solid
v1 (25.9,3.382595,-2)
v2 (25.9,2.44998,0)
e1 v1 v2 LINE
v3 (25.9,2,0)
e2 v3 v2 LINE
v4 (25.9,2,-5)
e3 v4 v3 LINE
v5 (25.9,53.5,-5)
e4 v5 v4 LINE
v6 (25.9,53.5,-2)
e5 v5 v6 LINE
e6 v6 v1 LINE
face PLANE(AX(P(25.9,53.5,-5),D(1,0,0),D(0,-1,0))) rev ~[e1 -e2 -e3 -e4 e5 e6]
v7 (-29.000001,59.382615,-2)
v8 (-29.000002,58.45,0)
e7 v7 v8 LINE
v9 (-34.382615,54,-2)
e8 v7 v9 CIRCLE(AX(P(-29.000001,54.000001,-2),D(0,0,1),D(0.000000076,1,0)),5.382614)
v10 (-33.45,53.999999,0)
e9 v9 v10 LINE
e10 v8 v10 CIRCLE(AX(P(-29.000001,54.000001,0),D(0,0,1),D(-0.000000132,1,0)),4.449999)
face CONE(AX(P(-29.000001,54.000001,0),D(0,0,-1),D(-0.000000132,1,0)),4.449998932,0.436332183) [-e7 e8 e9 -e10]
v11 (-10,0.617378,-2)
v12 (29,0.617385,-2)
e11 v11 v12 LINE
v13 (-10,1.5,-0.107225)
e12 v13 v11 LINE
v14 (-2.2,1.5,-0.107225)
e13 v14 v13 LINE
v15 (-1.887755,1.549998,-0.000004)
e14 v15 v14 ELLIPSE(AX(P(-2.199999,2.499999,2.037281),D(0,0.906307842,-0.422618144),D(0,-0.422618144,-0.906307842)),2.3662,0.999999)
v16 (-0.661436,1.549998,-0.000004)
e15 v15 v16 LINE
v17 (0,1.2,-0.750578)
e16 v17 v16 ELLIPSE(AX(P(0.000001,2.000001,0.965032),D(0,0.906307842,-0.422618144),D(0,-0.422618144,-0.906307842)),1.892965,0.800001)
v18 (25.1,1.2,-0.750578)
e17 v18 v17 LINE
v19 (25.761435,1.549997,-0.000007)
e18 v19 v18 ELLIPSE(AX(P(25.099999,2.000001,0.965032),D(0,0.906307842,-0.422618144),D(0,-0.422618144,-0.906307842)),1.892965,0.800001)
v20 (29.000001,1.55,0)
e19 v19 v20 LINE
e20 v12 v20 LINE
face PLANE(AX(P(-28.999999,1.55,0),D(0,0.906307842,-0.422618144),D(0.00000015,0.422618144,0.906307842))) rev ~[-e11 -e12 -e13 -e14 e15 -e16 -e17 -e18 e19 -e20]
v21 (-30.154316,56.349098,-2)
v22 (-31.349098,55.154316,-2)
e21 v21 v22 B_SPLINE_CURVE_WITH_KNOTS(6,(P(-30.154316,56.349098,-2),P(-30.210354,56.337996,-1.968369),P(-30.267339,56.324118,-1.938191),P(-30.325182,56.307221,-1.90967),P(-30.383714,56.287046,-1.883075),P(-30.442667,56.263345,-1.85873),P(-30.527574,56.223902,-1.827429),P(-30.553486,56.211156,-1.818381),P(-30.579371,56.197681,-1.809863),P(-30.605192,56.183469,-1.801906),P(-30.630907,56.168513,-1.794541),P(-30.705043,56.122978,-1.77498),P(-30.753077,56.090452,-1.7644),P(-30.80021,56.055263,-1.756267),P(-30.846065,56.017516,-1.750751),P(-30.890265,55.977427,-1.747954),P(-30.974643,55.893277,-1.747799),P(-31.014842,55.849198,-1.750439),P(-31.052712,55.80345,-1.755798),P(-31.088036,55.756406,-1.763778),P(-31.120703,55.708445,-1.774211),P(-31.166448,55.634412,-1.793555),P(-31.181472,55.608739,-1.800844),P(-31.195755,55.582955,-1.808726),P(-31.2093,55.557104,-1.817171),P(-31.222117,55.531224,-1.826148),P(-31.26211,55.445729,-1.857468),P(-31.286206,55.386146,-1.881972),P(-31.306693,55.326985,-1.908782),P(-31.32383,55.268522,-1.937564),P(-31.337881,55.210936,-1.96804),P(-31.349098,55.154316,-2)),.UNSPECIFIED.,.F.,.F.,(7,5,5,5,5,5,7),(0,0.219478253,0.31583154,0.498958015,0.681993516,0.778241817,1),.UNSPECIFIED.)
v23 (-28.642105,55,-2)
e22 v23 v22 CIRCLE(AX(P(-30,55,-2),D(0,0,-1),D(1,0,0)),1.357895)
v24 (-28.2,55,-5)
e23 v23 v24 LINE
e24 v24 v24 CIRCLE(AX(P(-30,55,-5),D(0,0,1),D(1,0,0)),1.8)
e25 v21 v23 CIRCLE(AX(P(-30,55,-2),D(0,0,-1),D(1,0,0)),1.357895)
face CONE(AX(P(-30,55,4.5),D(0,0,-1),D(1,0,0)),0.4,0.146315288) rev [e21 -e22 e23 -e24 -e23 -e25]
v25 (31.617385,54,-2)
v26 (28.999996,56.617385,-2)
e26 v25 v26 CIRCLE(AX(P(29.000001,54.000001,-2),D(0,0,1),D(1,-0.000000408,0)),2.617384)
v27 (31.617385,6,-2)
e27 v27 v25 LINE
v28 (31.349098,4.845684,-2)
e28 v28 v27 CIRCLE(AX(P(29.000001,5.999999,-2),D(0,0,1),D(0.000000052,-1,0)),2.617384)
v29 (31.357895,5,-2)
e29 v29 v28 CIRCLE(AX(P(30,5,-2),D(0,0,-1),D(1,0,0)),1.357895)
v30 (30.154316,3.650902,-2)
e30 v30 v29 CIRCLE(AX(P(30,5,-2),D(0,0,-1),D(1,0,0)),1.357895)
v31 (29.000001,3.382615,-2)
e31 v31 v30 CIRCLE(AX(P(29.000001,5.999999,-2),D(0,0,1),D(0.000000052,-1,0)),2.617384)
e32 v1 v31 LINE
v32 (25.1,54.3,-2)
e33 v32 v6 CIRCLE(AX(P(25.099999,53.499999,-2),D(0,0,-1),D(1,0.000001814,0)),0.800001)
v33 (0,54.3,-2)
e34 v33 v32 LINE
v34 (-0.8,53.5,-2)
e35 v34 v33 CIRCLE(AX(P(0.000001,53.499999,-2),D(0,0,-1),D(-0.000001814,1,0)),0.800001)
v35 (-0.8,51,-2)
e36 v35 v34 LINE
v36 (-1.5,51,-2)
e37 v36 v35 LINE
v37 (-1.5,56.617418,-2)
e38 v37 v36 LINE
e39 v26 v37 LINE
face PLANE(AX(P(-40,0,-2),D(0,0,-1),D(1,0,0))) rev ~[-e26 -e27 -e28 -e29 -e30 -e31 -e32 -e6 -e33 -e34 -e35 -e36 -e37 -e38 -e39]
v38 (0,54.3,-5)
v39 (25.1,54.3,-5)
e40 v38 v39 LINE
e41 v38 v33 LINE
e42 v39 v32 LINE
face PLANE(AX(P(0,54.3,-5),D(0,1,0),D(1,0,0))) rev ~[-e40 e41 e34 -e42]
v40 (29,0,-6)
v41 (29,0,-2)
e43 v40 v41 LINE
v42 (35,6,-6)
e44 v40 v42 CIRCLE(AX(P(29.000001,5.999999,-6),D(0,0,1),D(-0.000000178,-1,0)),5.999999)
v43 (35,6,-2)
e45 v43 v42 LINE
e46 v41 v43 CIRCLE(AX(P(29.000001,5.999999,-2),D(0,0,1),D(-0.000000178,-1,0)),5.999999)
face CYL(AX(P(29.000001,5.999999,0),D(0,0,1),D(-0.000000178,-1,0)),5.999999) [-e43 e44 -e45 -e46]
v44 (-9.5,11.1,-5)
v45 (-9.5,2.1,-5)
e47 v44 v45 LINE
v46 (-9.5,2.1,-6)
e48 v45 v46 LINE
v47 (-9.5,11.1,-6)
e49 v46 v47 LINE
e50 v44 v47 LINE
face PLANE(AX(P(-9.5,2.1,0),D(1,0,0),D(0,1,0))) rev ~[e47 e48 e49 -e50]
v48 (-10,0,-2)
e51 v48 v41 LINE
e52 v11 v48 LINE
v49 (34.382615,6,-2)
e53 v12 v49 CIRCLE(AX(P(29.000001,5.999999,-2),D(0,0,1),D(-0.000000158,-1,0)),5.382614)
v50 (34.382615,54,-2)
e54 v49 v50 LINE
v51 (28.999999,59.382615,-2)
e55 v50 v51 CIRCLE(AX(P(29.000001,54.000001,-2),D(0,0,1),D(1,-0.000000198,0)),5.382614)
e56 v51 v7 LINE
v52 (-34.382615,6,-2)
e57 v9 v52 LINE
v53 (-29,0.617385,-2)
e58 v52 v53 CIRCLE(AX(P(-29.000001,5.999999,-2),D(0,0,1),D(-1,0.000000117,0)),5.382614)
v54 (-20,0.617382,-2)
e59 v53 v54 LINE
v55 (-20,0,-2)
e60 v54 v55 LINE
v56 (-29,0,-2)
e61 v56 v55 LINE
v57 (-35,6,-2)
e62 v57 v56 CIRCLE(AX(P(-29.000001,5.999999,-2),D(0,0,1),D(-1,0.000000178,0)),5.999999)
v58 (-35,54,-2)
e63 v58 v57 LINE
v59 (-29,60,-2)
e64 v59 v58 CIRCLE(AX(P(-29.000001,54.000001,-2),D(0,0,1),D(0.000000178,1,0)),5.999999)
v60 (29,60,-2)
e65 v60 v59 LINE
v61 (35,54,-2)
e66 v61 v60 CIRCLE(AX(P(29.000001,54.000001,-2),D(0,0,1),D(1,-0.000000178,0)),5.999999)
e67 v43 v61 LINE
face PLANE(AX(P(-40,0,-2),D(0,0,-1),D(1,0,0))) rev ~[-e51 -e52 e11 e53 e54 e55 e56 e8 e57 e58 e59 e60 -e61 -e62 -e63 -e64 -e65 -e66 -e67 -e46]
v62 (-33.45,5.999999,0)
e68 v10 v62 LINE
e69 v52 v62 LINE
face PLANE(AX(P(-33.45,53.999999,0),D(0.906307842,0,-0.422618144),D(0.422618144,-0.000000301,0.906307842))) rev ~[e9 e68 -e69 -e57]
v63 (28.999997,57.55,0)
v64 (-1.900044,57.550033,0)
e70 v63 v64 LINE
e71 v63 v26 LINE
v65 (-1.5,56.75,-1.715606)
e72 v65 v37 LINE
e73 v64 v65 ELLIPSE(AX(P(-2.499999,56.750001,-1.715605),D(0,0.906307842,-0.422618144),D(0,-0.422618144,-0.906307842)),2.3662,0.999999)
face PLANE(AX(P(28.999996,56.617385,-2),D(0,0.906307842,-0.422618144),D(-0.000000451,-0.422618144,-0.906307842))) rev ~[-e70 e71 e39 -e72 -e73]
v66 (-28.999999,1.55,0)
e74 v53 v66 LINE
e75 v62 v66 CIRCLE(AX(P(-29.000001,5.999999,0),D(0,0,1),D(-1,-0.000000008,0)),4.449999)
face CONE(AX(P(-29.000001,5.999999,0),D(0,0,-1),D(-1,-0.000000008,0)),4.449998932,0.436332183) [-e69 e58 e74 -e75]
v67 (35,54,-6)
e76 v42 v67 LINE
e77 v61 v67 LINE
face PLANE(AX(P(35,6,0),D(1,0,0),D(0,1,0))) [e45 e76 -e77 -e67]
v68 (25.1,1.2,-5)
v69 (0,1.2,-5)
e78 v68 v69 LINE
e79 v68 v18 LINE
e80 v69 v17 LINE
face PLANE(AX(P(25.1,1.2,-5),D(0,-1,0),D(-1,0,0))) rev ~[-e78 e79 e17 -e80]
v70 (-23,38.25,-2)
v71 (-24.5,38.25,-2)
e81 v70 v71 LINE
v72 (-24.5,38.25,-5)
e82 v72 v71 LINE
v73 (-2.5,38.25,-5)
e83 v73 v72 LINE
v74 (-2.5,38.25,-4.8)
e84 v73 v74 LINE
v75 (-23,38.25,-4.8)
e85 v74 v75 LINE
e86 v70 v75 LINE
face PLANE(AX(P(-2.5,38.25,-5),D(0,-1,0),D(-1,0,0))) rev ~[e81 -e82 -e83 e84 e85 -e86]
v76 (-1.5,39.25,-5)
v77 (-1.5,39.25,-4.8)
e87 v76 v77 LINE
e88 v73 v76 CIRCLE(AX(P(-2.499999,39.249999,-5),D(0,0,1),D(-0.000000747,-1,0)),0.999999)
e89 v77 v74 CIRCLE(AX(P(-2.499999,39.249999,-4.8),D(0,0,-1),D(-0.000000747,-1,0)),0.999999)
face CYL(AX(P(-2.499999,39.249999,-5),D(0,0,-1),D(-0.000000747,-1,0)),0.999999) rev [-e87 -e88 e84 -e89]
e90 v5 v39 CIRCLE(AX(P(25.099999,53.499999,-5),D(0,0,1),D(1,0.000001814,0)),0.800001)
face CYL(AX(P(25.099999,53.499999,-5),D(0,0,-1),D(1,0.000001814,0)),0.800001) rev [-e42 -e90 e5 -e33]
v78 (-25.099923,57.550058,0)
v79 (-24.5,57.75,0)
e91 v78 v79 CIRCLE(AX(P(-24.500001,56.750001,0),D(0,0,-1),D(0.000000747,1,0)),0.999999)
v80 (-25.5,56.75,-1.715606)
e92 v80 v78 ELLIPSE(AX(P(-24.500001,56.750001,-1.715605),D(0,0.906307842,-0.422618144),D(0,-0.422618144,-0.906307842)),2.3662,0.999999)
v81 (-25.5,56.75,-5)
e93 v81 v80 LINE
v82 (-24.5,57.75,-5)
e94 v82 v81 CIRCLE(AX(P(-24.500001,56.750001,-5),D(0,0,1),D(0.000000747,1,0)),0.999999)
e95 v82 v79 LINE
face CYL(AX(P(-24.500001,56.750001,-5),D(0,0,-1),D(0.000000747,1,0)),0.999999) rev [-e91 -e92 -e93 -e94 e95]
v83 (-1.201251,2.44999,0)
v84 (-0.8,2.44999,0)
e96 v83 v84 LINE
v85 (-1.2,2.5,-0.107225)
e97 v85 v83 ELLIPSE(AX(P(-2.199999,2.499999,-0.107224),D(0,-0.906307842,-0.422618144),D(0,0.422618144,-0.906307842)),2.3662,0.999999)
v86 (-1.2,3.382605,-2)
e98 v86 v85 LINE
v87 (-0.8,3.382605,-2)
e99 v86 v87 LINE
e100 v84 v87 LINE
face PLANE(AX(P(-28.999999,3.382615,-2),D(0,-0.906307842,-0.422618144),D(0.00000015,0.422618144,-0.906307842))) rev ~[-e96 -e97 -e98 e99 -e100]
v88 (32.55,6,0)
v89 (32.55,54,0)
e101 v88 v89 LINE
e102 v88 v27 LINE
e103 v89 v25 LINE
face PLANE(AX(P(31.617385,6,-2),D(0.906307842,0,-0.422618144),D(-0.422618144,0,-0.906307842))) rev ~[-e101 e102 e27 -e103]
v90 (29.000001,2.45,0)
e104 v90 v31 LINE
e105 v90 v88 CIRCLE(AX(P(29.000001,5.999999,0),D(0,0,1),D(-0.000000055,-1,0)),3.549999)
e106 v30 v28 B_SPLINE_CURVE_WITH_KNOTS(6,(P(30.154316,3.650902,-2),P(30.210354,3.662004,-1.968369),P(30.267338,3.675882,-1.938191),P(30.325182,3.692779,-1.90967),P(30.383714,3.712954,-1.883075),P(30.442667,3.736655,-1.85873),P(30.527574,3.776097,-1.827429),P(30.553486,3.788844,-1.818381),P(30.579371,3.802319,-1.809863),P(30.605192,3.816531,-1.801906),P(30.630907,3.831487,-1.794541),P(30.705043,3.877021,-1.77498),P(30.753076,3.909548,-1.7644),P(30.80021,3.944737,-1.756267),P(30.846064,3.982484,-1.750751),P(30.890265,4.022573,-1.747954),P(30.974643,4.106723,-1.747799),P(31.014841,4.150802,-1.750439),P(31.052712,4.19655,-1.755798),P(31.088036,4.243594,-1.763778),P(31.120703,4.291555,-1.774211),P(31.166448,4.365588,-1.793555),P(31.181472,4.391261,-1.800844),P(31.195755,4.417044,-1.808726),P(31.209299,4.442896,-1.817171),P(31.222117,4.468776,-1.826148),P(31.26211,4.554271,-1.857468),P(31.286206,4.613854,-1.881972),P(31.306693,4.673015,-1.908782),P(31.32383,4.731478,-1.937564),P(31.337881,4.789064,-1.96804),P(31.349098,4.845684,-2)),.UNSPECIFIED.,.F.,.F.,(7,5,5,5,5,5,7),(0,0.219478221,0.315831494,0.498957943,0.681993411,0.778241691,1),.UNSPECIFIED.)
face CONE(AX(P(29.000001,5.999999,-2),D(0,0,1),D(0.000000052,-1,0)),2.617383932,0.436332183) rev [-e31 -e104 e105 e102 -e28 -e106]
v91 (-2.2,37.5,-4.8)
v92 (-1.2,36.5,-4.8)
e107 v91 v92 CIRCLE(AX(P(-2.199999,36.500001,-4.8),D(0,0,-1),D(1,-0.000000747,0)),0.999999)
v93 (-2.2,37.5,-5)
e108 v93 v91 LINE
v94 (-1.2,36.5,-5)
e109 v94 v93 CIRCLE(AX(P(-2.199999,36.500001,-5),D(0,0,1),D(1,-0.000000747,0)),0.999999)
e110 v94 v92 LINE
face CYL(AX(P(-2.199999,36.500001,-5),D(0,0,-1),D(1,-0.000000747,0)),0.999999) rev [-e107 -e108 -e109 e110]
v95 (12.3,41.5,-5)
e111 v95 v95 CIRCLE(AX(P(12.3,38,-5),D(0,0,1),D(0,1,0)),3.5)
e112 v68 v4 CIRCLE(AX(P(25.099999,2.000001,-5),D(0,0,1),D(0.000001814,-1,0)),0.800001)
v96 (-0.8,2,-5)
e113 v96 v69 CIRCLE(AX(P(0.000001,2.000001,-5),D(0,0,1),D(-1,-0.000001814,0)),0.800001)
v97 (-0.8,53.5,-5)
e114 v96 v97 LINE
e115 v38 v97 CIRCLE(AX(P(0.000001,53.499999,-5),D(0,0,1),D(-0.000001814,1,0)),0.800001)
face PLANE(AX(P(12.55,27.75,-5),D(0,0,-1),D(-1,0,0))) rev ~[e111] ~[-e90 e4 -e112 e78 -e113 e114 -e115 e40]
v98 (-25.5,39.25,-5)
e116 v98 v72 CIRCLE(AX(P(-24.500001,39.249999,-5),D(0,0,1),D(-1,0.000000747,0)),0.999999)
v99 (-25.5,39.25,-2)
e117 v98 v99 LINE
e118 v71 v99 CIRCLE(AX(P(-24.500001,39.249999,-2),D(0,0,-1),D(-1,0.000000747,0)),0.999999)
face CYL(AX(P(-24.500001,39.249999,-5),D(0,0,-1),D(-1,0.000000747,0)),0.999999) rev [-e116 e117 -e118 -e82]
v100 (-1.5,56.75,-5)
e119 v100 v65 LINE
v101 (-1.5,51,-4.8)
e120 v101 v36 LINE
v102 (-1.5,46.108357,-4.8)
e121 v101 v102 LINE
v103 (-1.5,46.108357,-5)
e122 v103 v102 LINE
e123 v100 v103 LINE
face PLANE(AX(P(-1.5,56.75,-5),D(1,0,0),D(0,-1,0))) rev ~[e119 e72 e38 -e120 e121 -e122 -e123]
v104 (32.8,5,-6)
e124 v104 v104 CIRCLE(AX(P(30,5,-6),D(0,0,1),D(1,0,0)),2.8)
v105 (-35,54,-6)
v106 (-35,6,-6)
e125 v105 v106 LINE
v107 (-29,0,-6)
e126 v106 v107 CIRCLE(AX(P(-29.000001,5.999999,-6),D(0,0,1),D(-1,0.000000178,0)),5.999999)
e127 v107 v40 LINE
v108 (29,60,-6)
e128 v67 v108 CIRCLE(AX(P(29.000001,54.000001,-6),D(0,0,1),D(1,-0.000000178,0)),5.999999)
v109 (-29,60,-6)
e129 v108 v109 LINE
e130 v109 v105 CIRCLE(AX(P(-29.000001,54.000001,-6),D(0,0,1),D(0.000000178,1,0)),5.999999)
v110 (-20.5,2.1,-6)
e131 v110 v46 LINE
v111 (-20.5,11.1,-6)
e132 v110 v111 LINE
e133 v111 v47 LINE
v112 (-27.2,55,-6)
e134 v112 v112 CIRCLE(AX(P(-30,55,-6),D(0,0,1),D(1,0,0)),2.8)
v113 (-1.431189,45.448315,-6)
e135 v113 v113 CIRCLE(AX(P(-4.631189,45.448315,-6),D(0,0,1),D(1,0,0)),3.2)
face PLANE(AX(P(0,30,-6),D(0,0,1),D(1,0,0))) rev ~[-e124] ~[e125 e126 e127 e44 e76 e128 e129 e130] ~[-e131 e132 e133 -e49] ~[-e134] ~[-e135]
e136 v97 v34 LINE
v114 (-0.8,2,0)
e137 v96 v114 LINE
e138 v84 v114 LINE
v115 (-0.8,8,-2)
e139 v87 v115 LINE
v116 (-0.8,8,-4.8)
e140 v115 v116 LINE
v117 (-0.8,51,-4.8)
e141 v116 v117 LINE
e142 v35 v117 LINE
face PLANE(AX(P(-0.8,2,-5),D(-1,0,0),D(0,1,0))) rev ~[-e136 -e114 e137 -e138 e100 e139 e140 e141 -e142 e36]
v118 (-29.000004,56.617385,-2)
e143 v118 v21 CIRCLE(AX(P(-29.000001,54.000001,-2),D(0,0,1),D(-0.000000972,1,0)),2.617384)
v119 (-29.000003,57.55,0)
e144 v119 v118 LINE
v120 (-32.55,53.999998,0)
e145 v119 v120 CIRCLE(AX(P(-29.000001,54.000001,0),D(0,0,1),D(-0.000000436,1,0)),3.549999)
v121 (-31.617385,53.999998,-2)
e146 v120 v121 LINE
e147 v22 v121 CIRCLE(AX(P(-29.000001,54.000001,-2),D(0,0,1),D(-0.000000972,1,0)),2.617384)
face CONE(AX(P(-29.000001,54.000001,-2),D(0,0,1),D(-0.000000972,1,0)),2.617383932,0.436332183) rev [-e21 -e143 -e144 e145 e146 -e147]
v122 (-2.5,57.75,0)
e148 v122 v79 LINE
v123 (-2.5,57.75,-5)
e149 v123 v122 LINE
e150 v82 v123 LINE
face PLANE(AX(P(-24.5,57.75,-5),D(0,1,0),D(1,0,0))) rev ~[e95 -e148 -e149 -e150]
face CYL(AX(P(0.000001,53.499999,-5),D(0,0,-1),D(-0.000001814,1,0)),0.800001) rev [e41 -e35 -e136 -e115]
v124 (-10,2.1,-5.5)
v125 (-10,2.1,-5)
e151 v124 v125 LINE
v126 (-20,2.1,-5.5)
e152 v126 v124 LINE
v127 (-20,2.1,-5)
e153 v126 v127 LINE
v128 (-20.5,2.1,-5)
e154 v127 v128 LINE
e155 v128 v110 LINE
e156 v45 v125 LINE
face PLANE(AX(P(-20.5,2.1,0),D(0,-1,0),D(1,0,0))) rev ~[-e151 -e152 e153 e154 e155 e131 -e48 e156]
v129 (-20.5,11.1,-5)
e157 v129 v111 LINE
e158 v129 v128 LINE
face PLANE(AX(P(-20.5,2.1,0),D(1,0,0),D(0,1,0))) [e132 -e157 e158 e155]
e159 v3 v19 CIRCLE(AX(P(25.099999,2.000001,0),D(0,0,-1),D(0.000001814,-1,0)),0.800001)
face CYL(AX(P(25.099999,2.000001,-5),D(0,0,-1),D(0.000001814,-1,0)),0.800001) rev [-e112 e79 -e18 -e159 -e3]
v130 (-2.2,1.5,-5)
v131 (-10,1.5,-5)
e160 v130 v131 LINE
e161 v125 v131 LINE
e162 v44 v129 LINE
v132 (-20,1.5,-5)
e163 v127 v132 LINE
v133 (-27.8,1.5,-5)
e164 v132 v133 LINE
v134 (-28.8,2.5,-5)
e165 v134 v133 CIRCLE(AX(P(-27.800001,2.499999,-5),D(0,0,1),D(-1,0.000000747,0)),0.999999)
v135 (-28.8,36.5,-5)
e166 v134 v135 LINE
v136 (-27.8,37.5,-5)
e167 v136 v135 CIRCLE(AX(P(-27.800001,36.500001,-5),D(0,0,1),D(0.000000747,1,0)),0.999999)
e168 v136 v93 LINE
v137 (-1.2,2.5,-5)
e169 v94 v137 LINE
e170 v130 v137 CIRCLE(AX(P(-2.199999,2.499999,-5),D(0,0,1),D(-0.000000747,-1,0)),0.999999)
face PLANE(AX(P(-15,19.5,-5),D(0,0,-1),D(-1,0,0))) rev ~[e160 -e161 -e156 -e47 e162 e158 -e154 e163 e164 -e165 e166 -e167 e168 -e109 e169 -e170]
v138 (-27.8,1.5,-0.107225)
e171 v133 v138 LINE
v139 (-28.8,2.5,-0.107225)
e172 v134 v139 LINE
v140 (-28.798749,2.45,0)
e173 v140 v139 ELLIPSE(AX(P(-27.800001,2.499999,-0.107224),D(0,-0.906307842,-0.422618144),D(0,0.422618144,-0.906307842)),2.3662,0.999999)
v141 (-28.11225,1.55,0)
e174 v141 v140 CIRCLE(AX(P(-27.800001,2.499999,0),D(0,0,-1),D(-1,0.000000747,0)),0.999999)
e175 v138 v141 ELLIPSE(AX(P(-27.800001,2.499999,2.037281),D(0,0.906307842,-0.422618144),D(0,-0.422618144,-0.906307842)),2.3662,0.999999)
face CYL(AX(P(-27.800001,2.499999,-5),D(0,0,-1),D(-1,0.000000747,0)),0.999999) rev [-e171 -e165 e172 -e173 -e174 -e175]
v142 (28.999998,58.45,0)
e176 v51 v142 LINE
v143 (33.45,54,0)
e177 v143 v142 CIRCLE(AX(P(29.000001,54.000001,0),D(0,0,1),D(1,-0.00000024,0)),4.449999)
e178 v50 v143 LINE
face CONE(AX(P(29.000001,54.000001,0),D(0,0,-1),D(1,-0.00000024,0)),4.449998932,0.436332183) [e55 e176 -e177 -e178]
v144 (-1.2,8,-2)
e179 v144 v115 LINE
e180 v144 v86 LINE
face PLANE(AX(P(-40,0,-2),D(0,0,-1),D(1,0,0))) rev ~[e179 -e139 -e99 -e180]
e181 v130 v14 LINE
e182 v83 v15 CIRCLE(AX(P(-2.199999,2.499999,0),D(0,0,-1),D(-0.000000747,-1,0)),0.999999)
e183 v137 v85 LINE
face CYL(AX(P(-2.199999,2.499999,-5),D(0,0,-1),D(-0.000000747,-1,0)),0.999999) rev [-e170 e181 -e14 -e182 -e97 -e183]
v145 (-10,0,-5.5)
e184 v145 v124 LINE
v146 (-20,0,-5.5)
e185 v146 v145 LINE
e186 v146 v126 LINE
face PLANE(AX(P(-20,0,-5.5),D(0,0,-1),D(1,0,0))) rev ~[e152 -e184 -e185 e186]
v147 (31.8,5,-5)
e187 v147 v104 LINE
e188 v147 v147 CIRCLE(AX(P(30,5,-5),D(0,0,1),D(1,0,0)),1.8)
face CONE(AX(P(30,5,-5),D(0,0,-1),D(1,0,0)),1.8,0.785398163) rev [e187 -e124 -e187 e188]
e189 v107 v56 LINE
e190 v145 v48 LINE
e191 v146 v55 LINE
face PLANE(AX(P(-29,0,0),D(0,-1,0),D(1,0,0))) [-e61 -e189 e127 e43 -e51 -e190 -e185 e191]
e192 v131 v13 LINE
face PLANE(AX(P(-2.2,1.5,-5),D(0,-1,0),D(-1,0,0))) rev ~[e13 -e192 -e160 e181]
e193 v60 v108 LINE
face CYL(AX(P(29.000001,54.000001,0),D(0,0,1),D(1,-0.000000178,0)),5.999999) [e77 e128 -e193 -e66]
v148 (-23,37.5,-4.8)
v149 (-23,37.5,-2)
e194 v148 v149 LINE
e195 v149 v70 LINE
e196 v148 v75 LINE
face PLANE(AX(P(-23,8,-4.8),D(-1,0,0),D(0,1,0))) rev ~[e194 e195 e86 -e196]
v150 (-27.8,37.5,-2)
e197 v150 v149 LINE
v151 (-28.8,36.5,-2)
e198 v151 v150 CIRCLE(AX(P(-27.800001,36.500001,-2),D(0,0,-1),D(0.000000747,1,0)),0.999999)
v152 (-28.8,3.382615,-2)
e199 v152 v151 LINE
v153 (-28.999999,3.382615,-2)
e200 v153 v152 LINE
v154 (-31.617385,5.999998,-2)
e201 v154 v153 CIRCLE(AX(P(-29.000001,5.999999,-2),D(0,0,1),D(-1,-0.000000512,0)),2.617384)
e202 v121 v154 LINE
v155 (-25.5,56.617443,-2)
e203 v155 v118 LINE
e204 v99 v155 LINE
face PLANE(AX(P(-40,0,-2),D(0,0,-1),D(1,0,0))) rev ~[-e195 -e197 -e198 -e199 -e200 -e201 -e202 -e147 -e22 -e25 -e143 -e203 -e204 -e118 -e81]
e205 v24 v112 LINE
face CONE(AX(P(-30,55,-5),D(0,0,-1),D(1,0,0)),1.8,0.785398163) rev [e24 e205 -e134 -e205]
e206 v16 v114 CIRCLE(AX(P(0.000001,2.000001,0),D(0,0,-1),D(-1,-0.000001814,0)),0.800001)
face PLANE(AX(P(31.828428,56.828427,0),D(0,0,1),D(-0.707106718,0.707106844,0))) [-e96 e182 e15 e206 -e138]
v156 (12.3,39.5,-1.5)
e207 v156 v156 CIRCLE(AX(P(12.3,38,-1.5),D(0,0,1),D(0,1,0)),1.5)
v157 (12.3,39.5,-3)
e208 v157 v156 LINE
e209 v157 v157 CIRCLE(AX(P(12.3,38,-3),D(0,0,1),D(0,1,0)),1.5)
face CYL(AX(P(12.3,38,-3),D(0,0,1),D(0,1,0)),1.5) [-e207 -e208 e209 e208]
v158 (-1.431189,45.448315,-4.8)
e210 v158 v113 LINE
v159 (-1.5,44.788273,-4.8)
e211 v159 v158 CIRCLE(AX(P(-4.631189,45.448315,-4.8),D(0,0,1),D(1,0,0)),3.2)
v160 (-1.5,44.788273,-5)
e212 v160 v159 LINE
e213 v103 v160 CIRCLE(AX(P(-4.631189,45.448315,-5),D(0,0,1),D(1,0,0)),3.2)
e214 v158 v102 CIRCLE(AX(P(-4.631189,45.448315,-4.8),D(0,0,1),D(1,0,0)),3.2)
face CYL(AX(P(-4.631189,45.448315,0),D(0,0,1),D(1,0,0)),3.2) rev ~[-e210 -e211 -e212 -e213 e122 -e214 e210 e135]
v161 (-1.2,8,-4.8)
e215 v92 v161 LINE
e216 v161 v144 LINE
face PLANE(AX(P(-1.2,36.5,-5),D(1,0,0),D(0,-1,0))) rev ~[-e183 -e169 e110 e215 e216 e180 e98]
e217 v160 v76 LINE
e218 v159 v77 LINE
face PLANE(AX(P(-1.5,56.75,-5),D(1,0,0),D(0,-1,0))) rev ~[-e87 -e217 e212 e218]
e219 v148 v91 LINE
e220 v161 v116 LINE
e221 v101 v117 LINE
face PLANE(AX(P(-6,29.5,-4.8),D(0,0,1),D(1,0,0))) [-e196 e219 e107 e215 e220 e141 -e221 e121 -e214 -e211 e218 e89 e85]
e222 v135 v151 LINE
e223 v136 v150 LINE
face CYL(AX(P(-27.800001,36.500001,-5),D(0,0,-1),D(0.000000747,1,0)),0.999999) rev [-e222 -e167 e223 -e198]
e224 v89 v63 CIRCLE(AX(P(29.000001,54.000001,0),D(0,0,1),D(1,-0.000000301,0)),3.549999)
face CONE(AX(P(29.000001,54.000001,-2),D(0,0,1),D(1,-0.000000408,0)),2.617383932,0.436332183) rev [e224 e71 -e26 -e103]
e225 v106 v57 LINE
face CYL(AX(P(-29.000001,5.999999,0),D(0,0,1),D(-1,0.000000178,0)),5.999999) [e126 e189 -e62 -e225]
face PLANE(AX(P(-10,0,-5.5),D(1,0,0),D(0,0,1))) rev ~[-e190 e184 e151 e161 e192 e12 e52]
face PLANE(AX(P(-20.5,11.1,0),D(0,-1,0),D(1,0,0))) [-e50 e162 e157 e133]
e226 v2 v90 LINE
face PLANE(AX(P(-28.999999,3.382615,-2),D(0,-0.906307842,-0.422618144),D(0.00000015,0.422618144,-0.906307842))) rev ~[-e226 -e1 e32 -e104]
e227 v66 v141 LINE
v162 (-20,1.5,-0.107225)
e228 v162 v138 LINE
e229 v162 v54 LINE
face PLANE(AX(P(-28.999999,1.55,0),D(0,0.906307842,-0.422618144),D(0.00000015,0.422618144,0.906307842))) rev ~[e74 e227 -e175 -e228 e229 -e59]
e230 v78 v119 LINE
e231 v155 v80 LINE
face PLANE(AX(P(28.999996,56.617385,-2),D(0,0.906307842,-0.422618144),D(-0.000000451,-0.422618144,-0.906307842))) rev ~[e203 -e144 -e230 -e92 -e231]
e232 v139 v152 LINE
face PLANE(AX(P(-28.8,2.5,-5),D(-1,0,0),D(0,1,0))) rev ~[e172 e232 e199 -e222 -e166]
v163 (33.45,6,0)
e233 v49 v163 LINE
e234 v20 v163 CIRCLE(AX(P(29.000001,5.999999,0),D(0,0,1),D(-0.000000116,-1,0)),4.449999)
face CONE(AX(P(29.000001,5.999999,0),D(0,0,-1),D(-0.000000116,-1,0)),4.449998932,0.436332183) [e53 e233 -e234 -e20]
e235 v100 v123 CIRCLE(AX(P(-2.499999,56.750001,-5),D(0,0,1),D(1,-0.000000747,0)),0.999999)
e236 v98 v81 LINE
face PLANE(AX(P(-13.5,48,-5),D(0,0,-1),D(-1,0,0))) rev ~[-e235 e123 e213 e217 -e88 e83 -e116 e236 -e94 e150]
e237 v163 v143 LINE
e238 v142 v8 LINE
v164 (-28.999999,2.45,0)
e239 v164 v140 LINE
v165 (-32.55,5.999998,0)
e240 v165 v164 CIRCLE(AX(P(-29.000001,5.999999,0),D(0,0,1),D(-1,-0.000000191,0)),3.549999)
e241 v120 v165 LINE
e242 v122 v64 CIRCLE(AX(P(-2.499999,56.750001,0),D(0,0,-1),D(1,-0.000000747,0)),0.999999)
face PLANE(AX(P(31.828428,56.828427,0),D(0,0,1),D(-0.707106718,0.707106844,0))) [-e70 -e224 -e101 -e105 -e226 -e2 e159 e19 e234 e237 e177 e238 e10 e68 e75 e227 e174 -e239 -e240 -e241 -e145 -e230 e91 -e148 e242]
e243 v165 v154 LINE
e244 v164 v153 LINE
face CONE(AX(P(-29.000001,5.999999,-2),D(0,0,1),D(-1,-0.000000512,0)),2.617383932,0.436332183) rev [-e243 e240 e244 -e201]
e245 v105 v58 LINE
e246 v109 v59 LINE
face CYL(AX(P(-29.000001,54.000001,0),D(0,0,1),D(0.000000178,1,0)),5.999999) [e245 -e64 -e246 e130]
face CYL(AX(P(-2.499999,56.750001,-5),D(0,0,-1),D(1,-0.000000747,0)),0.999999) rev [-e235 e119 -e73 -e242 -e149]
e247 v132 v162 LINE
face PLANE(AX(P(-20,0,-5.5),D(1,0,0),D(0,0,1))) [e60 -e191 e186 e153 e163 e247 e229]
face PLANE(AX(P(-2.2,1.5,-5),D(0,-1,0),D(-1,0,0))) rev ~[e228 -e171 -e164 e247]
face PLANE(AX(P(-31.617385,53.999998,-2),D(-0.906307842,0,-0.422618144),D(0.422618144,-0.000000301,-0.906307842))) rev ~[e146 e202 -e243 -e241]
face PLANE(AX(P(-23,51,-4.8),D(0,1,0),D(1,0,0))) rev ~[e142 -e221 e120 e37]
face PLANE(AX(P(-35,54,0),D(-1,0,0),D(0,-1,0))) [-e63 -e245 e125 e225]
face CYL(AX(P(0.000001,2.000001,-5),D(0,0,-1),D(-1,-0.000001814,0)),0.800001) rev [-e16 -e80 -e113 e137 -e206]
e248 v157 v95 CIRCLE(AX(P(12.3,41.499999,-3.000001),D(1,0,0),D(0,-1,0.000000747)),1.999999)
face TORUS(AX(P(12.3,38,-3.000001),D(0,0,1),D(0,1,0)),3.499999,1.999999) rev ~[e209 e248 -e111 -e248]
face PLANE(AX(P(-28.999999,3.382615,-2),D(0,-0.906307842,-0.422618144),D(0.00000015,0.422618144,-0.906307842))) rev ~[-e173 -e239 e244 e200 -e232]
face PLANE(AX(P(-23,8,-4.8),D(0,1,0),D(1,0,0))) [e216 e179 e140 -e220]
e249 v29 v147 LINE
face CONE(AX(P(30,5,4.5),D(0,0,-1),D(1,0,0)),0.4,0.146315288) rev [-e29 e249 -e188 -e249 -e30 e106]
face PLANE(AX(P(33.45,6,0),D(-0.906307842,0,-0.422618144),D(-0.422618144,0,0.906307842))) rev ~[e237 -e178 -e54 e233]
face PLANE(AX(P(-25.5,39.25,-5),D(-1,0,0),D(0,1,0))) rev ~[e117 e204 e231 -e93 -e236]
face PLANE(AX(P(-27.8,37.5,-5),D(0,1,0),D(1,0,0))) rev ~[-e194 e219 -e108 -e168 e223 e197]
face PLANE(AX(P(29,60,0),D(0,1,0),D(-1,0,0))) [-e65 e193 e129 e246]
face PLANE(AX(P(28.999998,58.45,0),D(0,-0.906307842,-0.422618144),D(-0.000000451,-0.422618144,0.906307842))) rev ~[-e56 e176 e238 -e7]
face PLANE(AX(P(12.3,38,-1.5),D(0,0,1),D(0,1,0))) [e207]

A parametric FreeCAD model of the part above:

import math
import FreeCAD as App
import Part
import Sketcher

V = App.Vector
Q = App.Units.Quantity

doc = App.newDocument("Part")
body = doc.addObject("PartDesign::Body", "Body")

sketch1 = body.newObject("Sketcher::SketchObject", "Sketch")
sketch1.AttachmentSupport = (doc.getObject("XY_Plane"), [""])
sketch1.MapMode = "FlatFace"
sketch1.addGeometry([
    Part.LineSegment(V(29, 60, 0), V(-29, 60, 0)),
    Part.ArcOfCircle(Part.Circle(V(-29.000001, 54.000001, 0), V(0, 0, 1), 5.999999), math.radians(89.99999), math.radians(180.00001)),
    Part.LineSegment(V(-35, 54, 0), V(-35, 6, 0)),
    Part.ArcOfCircle(Part.Circle(V(-29.000001, 5.999999, 0), V(0, 0, 1), 5.999999), math.radians(179.99999), math.radians(270.00001)),
    Part.LineSegment(V(-29, 0, 0), V(29, 0, 0)),
    Part.ArcOfCircle(Part.Circle(V(29.000001, 5.999999, 0), V(0, 0, 1), 5.999999), math.radians(-90.00001), math.radians(0.00001)),
    Part.LineSegment(V(35, 6, 0), V(35, 54, 0)),
    Part.ArcOfCircle(Part.Circle(V(29.000001, 54.000001, 0), V(0, 0, 1), 5.999999), math.radians(-0.00001), math.radians(90.00001)),
], False)
sketch1.addConstraint([
    Sketcher.Constraint("Tangent", 0, 2, 1, 1),
    Sketcher.Constraint("Tangent", 1, 2, 2, 1),
    Sketcher.Constraint("Tangent", 2, 2, 3, 1),
    Sketcher.Constraint("Tangent", 3, 2, 4, 1),
    Sketcher.Constraint("Tangent", 4, 2, 5, 1),
    Sketcher.Constraint("Tangent", 5, 2, 6, 1),
    Sketcher.Constraint("Tangent", 6, 2, 7, 1),
    Sketcher.Constraint("Tangent", 7, 2, 0, 1),
    Sketcher.Constraint("Horizontal", 0),
    Sketcher.Constraint("Vertical", 2),
    Sketcher.Constraint("Horizontal", 4),
    Sketcher.Constraint("Vertical", 6),
    Sketcher.Constraint("Equal", 1, 3),
    Sketcher.Constraint("Equal", 3, 5),
    Sketcher.Constraint("Equal", 5, 7),
    Sketcher.Constraint("Symmetric", 3, 2, 4, 2, -1, 1),
    Sketcher.Constraint("Radius", 1, Q("5.999999 mm")),
    Sketcher.Constraint("DistanceX", 0, 2, 0, 1, Q("58 mm")),
    Sketcher.Constraint("DistanceY", 2, 2, 2, 1, Q("48 mm")),
])
pad1 = body.newObject("PartDesign::Pad", "Pad")
pad1.Profile = sketch1
pad1.Length = 12
pad1.Midplane = True

sketch2 = body.newObject("Sketcher::SketchObject", "Sketch001")
sketch2.AttachmentSupport = (doc.getObject("XZ_Plane"), [""])
sketch2.MapMode = "FlatFace"
sketch2.addGeometry([
    Part.LineSegment(V(-40, 12, 0), V(-40, -2, 0)),
    Part.LineSegment(V(-40, -2, 0), V(40, -2, 0)),
    Part.LineSegment(V(40, -2, 0), V(40, 12, 0)),
    Part.LineSegment(V(40, 12, 0), V(-40, 12, 0)),
], False)
sketch2.addConstraint([
    Sketcher.Constraint("Coincident", 0, 2, 1, 1),
    Sketcher.Constraint("Coincident", 1, 2, 2, 1),
    Sketcher.Constraint("Coincident", 2, 2, 3, 1),
    Sketcher.Constraint("Coincident", 3, 2, 0, 1),
    Sketcher.Constraint("Vertical", 0),
    Sketcher.Constraint("Horizontal", 1),
    Sketcher.Constraint("Vertical", 2),
    Sketcher.Constraint("Horizontal", 3),
    Sketcher.Constraint("DistanceX", 1, 1, 1, 2, Q("80 mm")),
    Sketcher.Constraint("DistanceY", 0, 2, 0, 1, Q("14 mm")),
    Sketcher.Constraint("DistanceX", 0, 2, -1, 1, Q("40 mm")),
    Sketcher.Constraint("DistanceY", 0, 2, -1, 1, Q("2 mm")),
])
pocket1 = body.newObject("PartDesign::Pocket", "Pocket")
pocket1.Profile = sketch2
pocket1.Type = "ThroughAll"
pocket1.Midplane = True

sketch3 = body.newObject("Sketcher::SketchObject", "Sketch002")
sketch3.AttachmentSupport = (doc.getObject("XZ_Plane"), [""])
sketch3.MapMode = "FlatFace"
sketch3.AttachmentOffset = App.Placement(V(0, 0, -30), App.Rotation())
sketch3.addGeometry([
    Part.LineSegment(V(31.617385, -2, 0), V(34.382615, -2, 0)),
    Part.LineSegment(V(34.382615, -2, 0), V(33.45, 0, 0)),
    Part.LineSegment(V(33.45, 0, 0), V(32.55, 0, 0)),
    Part.LineSegment(V(32.55, 0, 0), V(31.617385, -2, 0)),
], False)
sketch3.addConstraint([
    Sketcher.Constraint("Coincident", 0, 2, 1, 1),
    Sketcher.Constraint("Coincident", 1, 2, 2, 1),
    Sketcher.Constraint("Coincident", 2, 2, 3, 1),
    Sketcher.Constraint("Coincident", 3, 2, 0, 1),
    Sketcher.Constraint("Horizontal", 0),
    Sketcher.Constraint("Horizontal", 2),
    Sketcher.Constraint("PointOnObject", 1, 2, -1),
    Sketcher.Constraint("Equal", 1, 3),
    Sketcher.Constraint("Angle", 1, Q("114.999993 deg")),
    Sketcher.Constraint("DistanceX", 2, 2, 2, 1, Q("0.9 mm")),
    Sketcher.Constraint("DistanceY", 0, 2, -1, 1, Q("2 mm")),
    Sketcher.Constraint("DistanceX", -1, 1, 1, 2, Q("33.45 mm")),
])

sketch4 = body.newObject("Sketcher::SketchObject", "Sketch003")
sketch4.AttachmentSupport = (doc.getObject("XY_Plane"), [""])
sketch4.MapMode = "FlatFace"
sketch4.addGeometry([
    Part.LineSegment(V(29, 60, 0), V(-29, 60, 0)),
    Part.ArcOfCircle(Part.Circle(V(-29.000001, 54.000001, 0), V(0, 0, 1), 5.999999), math.radians(89.99999), math.radians(180.00001)),
    Part.LineSegment(V(-35, 54, 0), V(-35, 6, 0)),
    Part.ArcOfCircle(Part.Circle(V(-29.000001, 5.999999, 0), V(0, 0, 1), 5.999999), math.radians(179.99999), math.radians(270.00001)),
    Part.LineSegment(V(-29, 0, 0), V(29, 0, 0)),
    Part.ArcOfCircle(Part.Circle(V(29.000001, 5.999999, 0), V(0, 0, 1), 5.999999), math.radians(-90.00001), math.radians(0.00001)),
    Part.LineSegment(V(35, 6, 0), V(35, 54, 0)),
    Part.ArcOfCircle(Part.Circle(V(29.000001, 54.000001, 0), V(0, 0, 1), 5.999999), math.radians(-0.00001), math.radians(90.00001)),
], False)
sketch4.addConstraint([
    Sketcher.Constraint("Tangent", 0, 2, 1, 1),
    Sketcher.Constraint("Tangent", 1, 2, 2, 1),
    Sketcher.Constraint("Tangent", 2, 2, 3, 1),
    Sketcher.Constraint("Tangent", 3, 2, 4, 1),
    Sketcher.Constraint("Tangent", 4, 2, 5, 1),
    Sketcher.Constraint("Tangent", 5, 2, 6, 1),
    Sketcher.Constraint("Tangent", 6, 2, 7, 1),
    Sketcher.Constraint("Tangent", 7, 2, 0, 1),
    Sketcher.Constraint("Horizontal", 0),
    Sketcher.Constraint("Vertical", 2),
    Sketcher.Constraint("Horizontal", 4),
    Sketcher.Constraint("Vertical", 6),
    Sketcher.Constraint("Equal", 1, 3),
    Sketcher.Constraint("Equal", 3, 5),
    Sketcher.Constraint("Equal", 5, 7),
    Sketcher.Constraint("Symmetric", 3, 2, 4, 2, -1, 1),
    Sketcher.Constraint("Radius", 1, Q("5.999999 mm")),
    Sketcher.Constraint("DistanceX", 0, 2, 0, 1, Q("58 mm")),
    Sketcher.Constraint("DistanceY", 2, 2, 2, 1, Q("48 mm")),
])
doc.recompute()

additivepipe = body.newObject("PartDesign::AdditivePipe", "AdditivePipe")
additivepipe.Profile = sketch3
additivepipe.Spine = (sketch4, ["Edge1", "Edge2", "Edge3", "Edge4", "Edge5", "Edge6", "Edge7", "Edge8"])

sketch5 = body.newObject("Sketcher::SketchObject", "Sketch004")
sketch5.AttachmentSupport = (doc.getObject("XY_Plane"), [""])
sketch5.MapMode = "FlatFace"
sketch5.AttachmentOffset = App.Placement(V(0, 0, -5), App.Rotation())
sketch5.addGeometry([
    Part.LineSegment(V(25.1, 54.3, 0), V(0, 54.3, 0)),
    Part.ArcOfCircle(Part.Circle(V(0.000001, 53.499999, 0), V(0, 0, 1), 0.800001), math.radians(90.000104), math.radians(179.999896)),
    Part.LineSegment(V(-0.8, 53.5, 0), V(-0.8, 2, 0)),
    Part.ArcOfCircle(Part.Circle(V(0.000001, 2.000001, 0), V(0, 0, 1), 0.800001), math.radians(-179.999896), math.radians(-90.000104)),
    Part.LineSegment(V(0, 1.2, 0), V(25.1, 1.2, 0)),
    Part.ArcOfCircle(Part.Circle(V(25.099999, 2.000001, 0), V(0, 0, 1), 0.800001), math.radians(-89.999896), math.radians(-0.000104)),
    Part.LineSegment(V(25.9, 2, 0), V(25.9, 53.5, 0)),
    Part.ArcOfCircle(Part.Circle(V(25.099999, 53.499999, 0), V(0, 0, 1), 0.800001), math.radians(0.000104), math.radians(89.999896)),
], False)
sketch5.addConstraint([
    Sketcher.Constraint("Tangent", 0, 2, 1, 1),
    Sketcher.Constraint("Tangent", 1, 2, 2, 1),
    Sketcher.Constraint("Tangent", 2, 2, 3, 1),
    Sketcher.Constraint("Tangent", 3, 2, 4, 1),
    Sketcher.Constraint("Tangent", 4, 2, 5, 1),
    Sketcher.Constraint("Tangent", 5, 2, 6, 1),
    Sketcher.Constraint("Tangent", 6, 2, 7, 1),
    Sketcher.Constraint("Tangent", 7, 2, 0, 1),
    Sketcher.Constraint("Horizontal", 0),
    Sketcher.Constraint("Vertical", 2),
    Sketcher.Constraint("Horizontal", 4),
    Sketcher.Constraint("Vertical", 6),
    Sketcher.Constraint("Equal", 1, 3),
    Sketcher.Constraint("Equal", 3, 5),
    Sketcher.Constraint("Equal", 5, 7),
    Sketcher.Constraint("PointOnObject", 1, 3, -2),
    Sketcher.Constraint("Radius", 1, Q("0.800001 mm")),
    Sketcher.Constraint("DistanceX", 0, 2, 0, 1, Q("25.1 mm")),
    Sketcher.Constraint("DistanceY", 2, 2, 2, 1, Q("51.5 mm")),
    Sketcher.Constraint("DistanceY", -1, 1, 3, 3, Q("2.000001 mm")),
])
pocket2 = body.newObject("PartDesign::Pocket", "Pocket001")
pocket2.Profile = sketch5
pocket2.Type = "ThroughAll"
pocket2.Reversed = True

sketch6 = body.newObject("Sketcher::SketchObject", "Sketch005")
sketch6.AttachmentSupport = (doc.getObject("XY_Plane"), [""])
sketch6.MapMode = "FlatFace"
sketch6.AttachmentOffset = App.Placement(V(0, 0, -5), App.Rotation())
sketch6.addGeometry([
    Part.LineSegment(V(-2.2, 37.5, 0), V(-27.8, 37.5, 0)),
    Part.ArcOfCircle(Part.Circle(V(-27.800001, 36.500001, 0), V(0, 0, 1), 0.999999), math.radians(89.999957), math.radians(180.000043)),
    Part.LineSegment(V(-28.8, 36.5, 0), V(-28.8, 2.5, 0)),
    Part.ArcOfCircle(Part.Circle(V(-27.800001, 2.499999, 0), V(0, 0, 1), 0.999999), math.radians(179.999957), math.radians(270.000043)),
    Part.LineSegment(V(-27.8, 1.5, 0), V(-2.2, 1.5, 0)),
    Part.ArcOfCircle(Part.Circle(V(-2.199999, 2.499999, 0), V(0, 0, 1), 0.999999), math.radians(-90.000043), math.radians(0.000043)),
    Part.LineSegment(V(-1.2, 2.5, 0), V(-1.2, 36.5, 0)),
    Part.ArcOfCircle(Part.Circle(V(-2.199999, 36.500001, 0), V(0, 0, 1), 0.999999), math.radians(-0.000043), math.radians(90.000043)),
], False)
sketch6.addConstraint([
    Sketcher.Constraint("Tangent", 0, 2, 1, 1),
    Sketcher.Constraint("Tangent", 1, 2, 2, 1),
    Sketcher.Constraint("Tangent", 2, 2, 3, 1),
    Sketcher.Constraint("Tangent", 3, 2, 4, 1),
    Sketcher.Constraint("Tangent", 4, 2, 5, 1),
    Sketcher.Constraint("Tangent", 5, 2, 6, 1),
    Sketcher.Constraint("Tangent", 6, 2, 7, 1),
    Sketcher.Constraint("Tangent", 7, 2, 0, 1),
    Sketcher.Constraint("Horizontal", 0),
    Sketcher.Constraint("Vertical", 2),
    Sketcher.Constraint("Horizontal", 4),
    Sketcher.Constraint("Vertical", 6),
    Sketcher.Constraint("Equal", 1, 3),
    Sketcher.Constraint("Equal", 3, 5),
    Sketcher.Constraint("Equal", 5, 7),
    Sketcher.Constraint("Radius", 1, Q("0.999999 mm")),
    Sketcher.Constraint("DistanceY", 2, 2, 2, 1, Q("34 mm")),
    Sketcher.Constraint("DistanceX", 0, 2, 0, 1, Q("25.6 mm")),
    Sketcher.Constraint("DistanceX", 1, 3, -1, 1, Q("27.800001 mm")),
    Sketcher.Constraint("DistanceY", -1, 1, 1, 3, Q("36.500001 mm")),
])
pocket3 = body.newObject("PartDesign::Pocket", "Pocket002")
pocket3.Profile = sketch6
pocket3.Type = "ThroughAll"
pocket3.Reversed = True

sketch7 = body.newObject("Sketcher::SketchObject", "Sketch006")
sketch7.AttachmentSupport = (doc.getObject("XY_Plane"), [""])
sketch7.MapMode = "FlatFace"
sketch7.AttachmentOffset = App.Placement(V(0, 0, -5), App.Rotation())
sketch7.addGeometry([
    Part.LineSegment(V(-2.5, 57.75, 0), V(-24.5, 57.75, 0)),
    Part.ArcOfCircle(Part.Circle(V(-24.500001, 56.750001, 0), V(0, 0, 1), 0.999999), math.radians(89.999957), math.radians(180.000043)),
    Part.LineSegment(V(-25.5, 56.75, 0), V(-25.5, 39.25, 0)),
    Part.ArcOfCircle(Part.Circle(V(-24.500001, 39.249999, 0), V(0, 0, 1), 0.999999), math.radians(179.999957), math.radians(270.000043)),
    Part.LineSegment(V(-24.5, 38.25, 0), V(-2.5, 38.25, 0)),
    Part.ArcOfCircle(Part.Circle(V(-2.499999, 39.249999, 0), V(0, 0, 1), 0.999999), math.radians(-90.000043), math.radians(0.000043)),
    Part.LineSegment(V(-1.5, 39.25, 0), V(-1.5, 56.75, 0)),
    Part.ArcOfCircle(Part.Circle(V(-2.499999, 56.750001, 0), V(0, 0, 1), 0.999999), math.radians(-0.000043), math.radians(90.000043)),
], False)
sketch7.addConstraint([
    Sketcher.Constraint("Tangent", 0, 2, 1, 1),
    Sketcher.Constraint("Tangent", 1, 2, 2, 1),
    Sketcher.Constraint("Tangent", 2, 2, 3, 1),
    Sketcher.Constraint("Tangent", 3, 2, 4, 1),
    Sketcher.Constraint("Tangent", 4, 2, 5, 1),
    Sketcher.Constraint("Tangent", 5, 2, 6, 1),
    Sketcher.Constraint("Tangent", 6, 2, 7, 1),
    Sketcher.Constraint("Tangent", 7, 2, 0, 1),
    Sketcher.Constraint("Horizontal", 0),
    Sketcher.Constraint("Vertical", 2),
    Sketcher.Constraint("Horizontal", 4),
    Sketcher.Constraint("Vertical", 6),
    Sketcher.Constraint("Equal", 1, 3),
    Sketcher.Constraint("Equal", 3, 5),
    Sketcher.Constraint("Equal", 5, 7),
    Sketcher.Constraint("Radius", 1, Q("0.999999 mm")),
    Sketcher.Constraint("DistanceX", 0, 2, 0, 1, Q("22 mm")),
    Sketcher.Constraint("DistanceY", 2, 2, 2, 1, Q("17.5 mm")),
    Sketcher.Constraint("DistanceX", 1, 3, -1, 1, Q("24.500001 mm")),
    Sketcher.Constraint("DistanceY", -1, 1, 1, 3, Q("56.750001 mm")),
])
pocket4 = body.newObject("PartDesign::Pocket", "Pocket003")
pocket4.Profile = sketch7
pocket4.Type = "ThroughAll"
pocket4.Reversed = True

sketch8 = body.newObject("Sketcher::SketchObject", "Sketch007")
sketch8.AttachmentSupport = (doc.getObject("XZ_Plane"), [""])
sketch8.MapMode = "FlatFace"
sketch8.AttachmentOffset = App.Placement(V(0, 0, -55), App.Rotation())
sketch8.addGeometry([
    Part.LineSegment(V(-29.6, 4.5, 0), V(-30, 4.5, 0)),
    Part.LineSegment(V(-30, 4.5, 0), V(-30, -6, 0)),
    Part.LineSegment(V(-30, -6, 0), V(-27.2, -6, 0)),
    Part.LineSegment(V(-27.2, -6, 0), V(-28.2, -5, 0)),
    Part.LineSegment(V(-28.2, -5, 0), V(-29.6, 4.5, 0)),
], False)
sketch8.addGeometry(Part.LineSegment(V(-30, -6, 0), V(-30, 4.5, 0)), True)
sketch8.addConstraint([
    Sketcher.Constraint("Coincident", 0, 2, 1, 1),
    Sketcher.Constraint("Coincident", 1, 2, 2, 1),
    Sketcher.Constraint("Coincident", 2, 2, 3, 1),
    Sketcher.Constraint("Coincident", 3, 2, 4, 1),
    Sketcher.Constraint("Coincident", 4, 2, 0, 1),
    Sketcher.Constraint("Horizontal", 0),
    Sketcher.Constraint("Vertical", 1),
    Sketcher.Constraint("Horizontal", 2),
    Sketcher.Constraint("Vertical", 5),
    Sketcher.Constraint("Coincident", 5, 1, 1, 2),
    Sketcher.Constraint("Horizontal", 4, 2, 5, 2),
    Sketcher.Constraint("Angle", 3, Q("135 deg")),
    Sketcher.Constraint("DistanceX", 0, 2, 0, 1, Q("0.4 mm")),
    Sketcher.Constraint("DistanceX", 2, 1, 2, 2, Q("2.8 mm")),
    Sketcher.Constraint("DistanceY", 1, 2, 1, 1, Q("10.5 mm")),
    Sketcher.Constraint("DistanceX", 0, 2, -1, 1, Q("30 mm")),
    Sketcher.Constraint("DistanceY", 1, 2, -1, 1, Q("6 mm")),
    Sketcher.Constraint("DistanceY", 3, 2, -1, 1, Q("5 mm")),
])
groove = body.newObject("PartDesign::Groove", "Groove")
groove.Profile = sketch8
groove.ReferenceAxis = (sketch8, ["Axis0"])
groove.Angle = 360

sketch9 = body.newObject("Sketcher::SketchObject", "Sketch008")
sketch9.AttachmentSupport = (doc.getObject("XZ_Plane"), [""])
sketch9.MapMode = "FlatFace"
sketch9.AttachmentOffset = App.Placement(V(0, 0, -5), App.Rotation())
sketch9.addGeometry([
    Part.LineSegment(V(30.4, 4.5, 0), V(30, 4.5, 0)),
    Part.LineSegment(V(30, 4.5, 0), V(30, -6, 0)),
    Part.LineSegment(V(30, -6, 0), V(32.8, -6, 0)),
    Part.LineSegment(V(32.8, -6, 0), V(31.8, -5, 0)),
    Part.LineSegment(V(31.8, -5, 0), V(30.4, 4.5, 0)),
], False)
sketch9.addGeometry(Part.LineSegment(V(30, -6, 0), V(30, 4.5, 0)), True)
sketch9.addConstraint([
    Sketcher.Constraint("Coincident", 0, 2, 1, 1),
    Sketcher.Constraint("Coincident", 1, 2, 2, 1),
    Sketcher.Constraint("Coincident", 2, 2, 3, 1),
    Sketcher.Constraint("Coincident", 3, 2, 4, 1),
    Sketcher.Constraint("Coincident", 4, 2, 0, 1),
    Sketcher.Constraint("Horizontal", 0),
    Sketcher.Constraint("Vertical", 1),
    Sketcher.Constraint("Horizontal", 2),
    Sketcher.Constraint("Vertical", 5),
    Sketcher.Constraint("Coincident", 5, 1, 1, 2),
    Sketcher.Constraint("Horizontal", 4, 2, 5, 2),
    Sketcher.Constraint("Angle", 3, Q("135 deg")),
    Sketcher.Constraint("DistanceX", 0, 2, 0, 1, Q("0.4 mm")),
    Sketcher.Constraint("DistanceX", 2, 1, 2, 2, Q("2.8 mm")),
    Sketcher.Constraint("DistanceY", 1, 2, 1, 1, Q("10.5 mm")),
    Sketcher.Constraint("DistanceX", -1, 1, 0, 2, Q("30 mm")),
    Sketcher.Constraint("DistanceY", 1, 2, -1, 1, Q("6 mm")),
    Sketcher.Constraint("DistanceY", 3, 2, -1, 1, Q("5 mm")),
])
groove2 = body.newObject("PartDesign::Groove", "Groove001")
groove2.Profile = sketch9
groove2.ReferenceAxis = (sketch9, ["Axis0"])
groove2.Angle = 360

sketch10 = body.newObject("Sketcher::SketchObject", "Sketch009")
sketch10.AttachmentSupport = (doc.getObject("XY_Plane"), [""])
sketch10.MapMode = "FlatFace"
sketch10.AttachmentOffset = App.Placement(V(0, 0, -4.8), App.Rotation())
sketch10.addGeometry([
    Part.LineSegment(V(-23, 51, 0), V(-23, 8, 0)),
    Part.LineSegment(V(-23, 8, 0), V(11, 8, 0)),
    Part.LineSegment(V(11, 8, 0), V(11, 51, 0)),
    Part.LineSegment(V(11, 51, 0), V(-23, 51, 0)),
], False)
sketch10.addConstraint([
    Sketcher.Constraint("Coincident", 0, 2, 1, 1),
    Sketcher.Constraint("Coincident", 1, 2, 2, 1),
    Sketcher.Constraint("Coincident", 2, 2, 3, 1),
    Sketcher.Constraint("Coincident", 3, 2, 0, 1),
    Sketcher.Constraint("Vertical", 0),
    Sketcher.Constraint("Horizontal", 1),
    Sketcher.Constraint("Vertical", 2),
    Sketcher.Constraint("Horizontal", 3),
    Sketcher.Constraint("DistanceX", 1, 1, 1, 2, Q("34 mm")),
    Sketcher.Constraint("DistanceY", 0, 2, 0, 1, Q("43 mm")),
    Sketcher.Constraint("DistanceX", 0, 2, -1, 1, Q("23 mm")),
    Sketcher.Constraint("DistanceY", -1, 1, 0, 2, Q("8 mm")),
])
pocket5 = body.newObject("PartDesign::Pocket", "Pocket004")
pocket5.Profile = sketch10
pocket5.Type = "ThroughAll"
pocket5.Reversed = True

sketch11 = body.newObject("Sketcher::SketchObject", "Sketch010")
sketch11.AttachmentSupport = (doc.getObject("XY_Plane"), [""])
sketch11.MapMode = "FlatFace"
sketch11.addGeometry(Part.Circle(V(-4.631189, 45.448315, 0), V(0, 0, 1), 3.2), False)
sketch11.addConstraint([
    Sketcher.Constraint("Diameter", 0, Q("6.4 mm")),
    Sketcher.Constraint("DistanceX", 0, 3, -1, 1, Q("4.631189 mm")),
    Sketcher.Constraint("DistanceY", -1, 1, 0, 3, Q("45.448315 mm")),
])
pocket6 = body.newObject("PartDesign::Pocket", "Pocket005")
pocket6.Profile = sketch11
pocket6.Type = "ThroughAll"

sketch12 = body.newObject("Sketcher::SketchObject", "Sketch011")
sketch12.AttachmentSupport = (doc.getObject("XY_Plane"), [""])
sketch12.MapMode = "FlatFace"
sketch12.addGeometry([
    Part.LineSegment(V(-20.5, 11.1, 0), V(-20.5, 2.1, 0)),
    Part.LineSegment(V(-20.5, 2.1, 0), V(-9.5, 2.1, 0)),
    Part.LineSegment(V(-9.5, 2.1, 0), V(-9.5, 11.1, 0)),
    Part.LineSegment(V(-9.5, 11.1, 0), V(-20.5, 11.1, 0)),
], False)
sketch12.addConstraint([
    Sketcher.Constraint("Coincident", 0, 2, 1, 1),
    Sketcher.Constraint("Coincident", 1, 2, 2, 1),
    Sketcher.Constraint("Coincident", 2, 2, 3, 1),
    Sketcher.Constraint("Coincident", 3, 2, 0, 1),
    Sketcher.Constraint("Vertical", 0),
    Sketcher.Constraint("Horizontal", 1),
    Sketcher.Constraint("Vertical", 2),
    Sketcher.Constraint("Horizontal", 3),
    Sketcher.Constraint("DistanceX", 1, 1, 1, 2, Q("11 mm")),
    Sketcher.Constraint("DistanceY", 0, 2, 0, 1, Q("9 mm")),
    Sketcher.Constraint("DistanceX", 0, 2, -1, 1, Q("20.5 mm")),
    Sketcher.Constraint("DistanceY", -1, 1, 0, 2, Q("2.1 mm")),
])
pocket7 = body.newObject("PartDesign::Pocket", "Pocket006")
pocket7.Profile = sketch12
pocket7.Type = "ThroughAll"

sketch13 = body.newObject("Sketcher::SketchObject", "Sketch012")
sketch13.AttachmentSupport = (doc.getObject("XZ_Plane"), [""])
sketch13.MapMode = "FlatFace"
sketch13.addGeometry([
    Part.LineSegment(V(-20, 2.5, 0), V(-20, -5.5, 0)),
    Part.LineSegment(V(-20, -5.5, 0), V(-10, -5.5, 0)),
    Part.LineSegment(V(-10, -5.5, 0), V(-10, 2.5, 0)),
    Part.LineSegment(V(-10, 2.5, 0), V(-20, 2.5, 0)),
], False)
sketch13.addConstraint([
    Sketcher.Constraint("Coincident", 0, 2, 1, 1),
    Sketcher.Constraint("Coincident", 1, 2, 2, 1),
    Sketcher.Constraint("Coincident", 2, 2, 3, 1),
    Sketcher.Constraint("Coincident", 3, 2, 0, 1),
    Sketcher.Constraint("Vertical", 0),
    Sketcher.Constraint("Horizontal", 1),
    Sketcher.Constraint("Vertical", 2),
    Sketcher.Constraint("Horizontal", 3),
    Sketcher.Constraint("DistanceX", 1, 1, 1, 2, Q("10 mm")),
    Sketcher.Constraint("DistanceY", 0, 2, 0, 1, Q("8 mm")),
    Sketcher.Constraint("DistanceX", 0, 2, -1, 1, Q("20 mm")),
    Sketcher.Constraint("DistanceY", 0, 2, -1, 1, Q("5.5 mm")),
])
pocket8 = body.newObject("PartDesign::Pocket", "Pocket007")
pocket8.Profile = sketch13
pocket8.Length = 5

sketch14 = body.newObject("Sketcher::SketchObject", "Sketch013")
sketch14.AttachmentSupport = (doc.getObject("YZ_Plane"), [""])
sketch14.MapMode = "FlatFace"
sketch14.AttachmentOffset = App.Placement(V(0, 0, 12.3), App.Rotation())
sketch14.addGeometry([
    Part.LineSegment(V(38, -1.5, 0), V(38, -5, 0)),
    Part.LineSegment(V(38, -5, 0), V(41.5, -5, 0)),
    Part.ArcOfCircle(Part.Circle(V(41.499999, -3.000001, 0), V(0, 0, 1), 1.999999), math.radians(179.999957), math.radians(270.000043)),
    Part.LineSegment(V(39.5, -3, 0), V(39.5, -1.5, 0)),
    Part.LineSegment(V(39.5, -1.5, 0), V(38, -1.5, 0)),
], False)
sketch14.addGeometry(Part.LineSegment(V(38, -5, 0), V(38, -1.5, 0)), True)
sketch14.addConstraint([
    Sketcher.Constraint("Coincident", 0, 2, 1, 1),
    Sketcher.Constraint("Tangent", 1, 2, 2, 2),
    Sketcher.Constraint("Tangent", 2, 1, 3, 1),
    Sketcher.Constraint("Coincident", 3, 2, 4, 1),
    Sketcher.Constraint("Coincident", 4, 2, 0, 1),
    Sketcher.Constraint("Vertical", 0),
    Sketcher.Constraint("Horizontal", 1),
    Sketcher.Constraint("Vertical", 3),
    Sketcher.Constraint("Horizontal", 4),
    Sketcher.Constraint("Vertical", 5),
    Sketcher.Constraint("Coincident", 5, 1, 0, 2),
    Sketcher.Constraint("Horizontal", 3, 2, 5, 2),
    Sketcher.Constraint("Equal", 1, 0),
    Sketcher.Constraint("Radius", 2, Q("1.999999 mm")),
    Sketcher.Constraint("DistanceX", 1, 1, 1, 2, Q("3.5 mm")),
    Sketcher.Constraint("DistanceY", 2, 3, -1, 1, Q("3.000001 mm")),
    Sketcher.Constraint("DistanceX", -1, 1, 0, 2, Q("38 mm")),
])
revolution = body.newObject("PartDesign::Revolution", "Revolution")
revolution.Profile = sketch14
revolution.ReferenceAxis = (sketch14, ["Axis0"])
revolution.Angle = 360

doc.recompute()
